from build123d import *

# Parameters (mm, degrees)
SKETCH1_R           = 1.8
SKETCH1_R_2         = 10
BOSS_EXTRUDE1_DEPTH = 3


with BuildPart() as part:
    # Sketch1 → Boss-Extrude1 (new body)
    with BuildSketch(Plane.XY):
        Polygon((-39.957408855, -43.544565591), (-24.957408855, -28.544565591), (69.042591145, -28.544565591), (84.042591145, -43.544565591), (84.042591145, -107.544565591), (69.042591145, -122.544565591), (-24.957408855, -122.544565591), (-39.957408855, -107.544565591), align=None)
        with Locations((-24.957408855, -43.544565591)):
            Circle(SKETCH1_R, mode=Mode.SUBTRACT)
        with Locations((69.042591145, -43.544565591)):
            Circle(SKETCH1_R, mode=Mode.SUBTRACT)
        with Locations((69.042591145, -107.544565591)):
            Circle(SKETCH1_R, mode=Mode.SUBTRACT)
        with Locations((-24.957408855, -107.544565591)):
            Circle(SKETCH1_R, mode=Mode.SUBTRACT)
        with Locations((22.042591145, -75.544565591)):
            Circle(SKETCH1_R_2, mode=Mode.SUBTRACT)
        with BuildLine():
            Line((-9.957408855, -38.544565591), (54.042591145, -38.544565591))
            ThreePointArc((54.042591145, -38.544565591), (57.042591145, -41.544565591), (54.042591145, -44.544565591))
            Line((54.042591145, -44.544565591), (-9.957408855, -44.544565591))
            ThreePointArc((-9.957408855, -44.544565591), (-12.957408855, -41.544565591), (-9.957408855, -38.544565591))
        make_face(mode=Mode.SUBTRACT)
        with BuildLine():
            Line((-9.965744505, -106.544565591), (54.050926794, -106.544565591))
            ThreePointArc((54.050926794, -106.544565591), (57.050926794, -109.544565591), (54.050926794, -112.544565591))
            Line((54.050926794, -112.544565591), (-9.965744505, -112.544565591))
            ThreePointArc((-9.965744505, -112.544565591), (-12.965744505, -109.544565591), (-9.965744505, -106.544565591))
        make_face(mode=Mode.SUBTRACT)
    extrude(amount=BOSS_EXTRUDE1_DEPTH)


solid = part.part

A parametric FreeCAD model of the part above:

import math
import FreeCAD as App
import Part
import Sketcher

V = App.Vector
Q = App.Units.Quantity

doc = App.newDocument("Part")
body = doc.addObject("PartDesign::Body", "Body")

sketch1 = body.newObject("Sketcher::SketchObject", "Sketch")
sketch1.AttachmentSupport = (doc.getObject("XY_Plane"), [""])
sketch1.MapMode = "FlatFace"
sketch1.addGeometry([
    Part.LineSegment(V(-25, -28.5, 0), V(-40, -43.5, 0)),
    Part.LineSegment(V(-40, -43.5, 0), V(-40, -107.5, 0)),
    Part.LineSegment(V(-40, -107.5, 0), V(-25, -122.5, 0)),
    Part.LineSegment(V(-25, -122.5, 0), V(69, -122.5, 0)),
    Part.LineSegment(V(69, -122.5, 0), V(84, -107.5, 0)),
    Part.LineSegment(V(84, -107.5, 0), V(84, -43.5, 0)),
    Part.LineSegment(V(84, -43.5, 0), V(69, -28.5, 0)),
    Part.LineSegment(V(69, -28.5, 0), V(-25, -28.5, 0)),
    Part.Circle(V(69, -107.5, 0), V(0, 0, 1), 1.8),
    Part.LineSegment(V(-10, -106.5, 0), V(54.1, -106.5, 0)),
    Part.ArcOfCircle(Part.Circle(V(54.1, -109.5, 0), V(0, 0, 1), 3), math.radians(-90), math.radians(90)),
    Part.LineSegment(V(54.1, -112.5, 0), V(-10, -112.5, 0)),
    Part.ArcOfCircle(Part.Circle(V(-10, -109.5, 0), V(0, 0, 1), 3), math.radians(90), math.radians(270)),
    Part.Circle(V(-25, -107.5, 0), V(0, 0, 1), 1.8),
    Part.Circle(V(69, -43.5, 0), V(0, 0, 1), 1.8),
    Part.Circle(V(22, -75.5, 0), V(0, 0, 1), 10),
    Part.LineSegment(V(-10, -38.5, 0), V(54, -38.5, 0)),
    Part.ArcOfCircle(Part.Circle(V(54, -41.5, 0), V(0, 0, 1), 3), math.radians(-90), math.radians(90)),
    Part.LineSegment(V(54, -44.5, 0), V(-10, -44.5, 0)),
    Part.ArcOfCircle(Part.Circle(V(-10, -41.5, 0), V(0, 0, 1), 3), math.radians(90), math.radians(270)),
    Part.Circle(V(-25, -43.5, 0), V(0, 0, 1), 1.8),
], False)
sketch1.addConstraint([
    Sketcher.Constraint("Coincident", 0, 2, 1, 1),
    Sketcher.Constraint("Coincident", 1, 2, 2, 1),
    Sketcher.Constraint("Coincident", 2, 2, 3, 1),
    Sketcher.Constraint("Coincident", 3, 2, 4, 1),
    Sketcher.Constraint("Coincident", 4, 2, 5, 1),
    Sketcher.Constraint("Coincident", 5, 2, 6, 1),
    Sketcher.Constraint("Coincident", 6, 2, 7, 1),
    Sketcher.Constraint("Coincident", 7, 2, 0, 1),
    Sketcher.Constraint("Tangent", 9, 2, 10, 2),
    Sketcher.Constraint("Tangent", 10, 1, 11, 1),
    Sketcher.Constraint("Tangent", 11, 2, 12, 2),
    Sketcher.Constraint("Tangent", 12, 1, 9, 1),
    Sketcher.Constraint("Tangent", 16, 2, 17, 2),
    Sketcher.Constraint("Tangent", 17, 1, 18, 1),
    Sketcher.Constraint("Tangent", 18, 2, 19, 2),
    Sketcher.Constraint("Tangent", 19, 1, 16, 1),
    Sketcher.Constraint("Vertical", 1),
    Sketcher.Constraint("Horizontal", 3),
    Sketcher.Constraint("Vertical", 5),
    Sketcher.Constraint("Horizontal", 7),
    Sketcher.Constraint("Horizontal", 9),
    Sketcher.Constraint("Horizontal", 11),
    Sketcher.Constraint("Horizontal", 16),
    Sketcher.Constraint("Horizontal", 18),
    Sketcher.Constraint("Equal", 8, 13),
    Sketcher.Constraint("Equal", 13, 14),
    Sketcher.Constraint("Equal", 12, 17),
    Sketcher.Constraint("Equal", 14, 20),
    Sketcher.Constraint("Perpendicular", 0, 2),
    Sketcher.Constraint("Perpendicular", 2, 4),
    Sketcher.Constraint("Perpendicular", 4, 6),
    Sketcher.Constraint("Horizontal", 8, 3, 13, 3),
    Sketcher.Constraint("Horizontal", 14, 3, 20, 3),
    Sketcher.Constraint("Horizontal", 20, 3, 0, 2),
    Sketcher.Constraint("Horizontal", 13, 3, 1, 2),
    Sketcher.Constraint("Horizontal", 1, 2, 4, 2),
    Sketcher.Constraint("Horizontal", 0, 2, 5, 2),
    Sketcher.Constraint("Vertical", 8, 3, 14, 3),
    Sketcher.Constraint("Vertical", 13, 3, 20, 3),
    Sketcher.Constraint("Vertical", 20, 3, 2, 2),
    Sketcher.Constraint("Vertical", 14, 3, 3, 2),
    Sketcher.Constraint("Vertical", 3, 2, 6, 2),
    Sketcher.Constraint("Vertical", 2, 2, 7, 2),
    Sketcher.Constraint("Equal", 18, 1),
    Sketcher.Constraint("Diameter", 15, Q("20 mm")),
    Sketcher.Constraint("Radius", 10, Q("3 mm")),
    Sketcher.Constraint("Diameter", 8, Q("3.6 mm")),
    Sketcher.Constraint("DistanceX", 3, 1, 3, 2, Q("94 mm")),
    Sketcher.Constraint("DistanceX", 16, 1, 16, 2, Q("64 mm")),
    Sketcher.Constraint("DistanceY", 10, 3, 8, 3, Q("2 mm")),
    Sketcher.Constraint("DistanceY", 10, 3, 15, 3, Q("34 mm")),
    Sketcher.Constraint("DistanceX", 15, 3, 14, 3, Q("47 mm")),
    Sketcher.Constraint("DistanceX", 17, 3, 14, 3, Q("15 mm")),
    Sketcher.Constraint("DistanceY", 14, 3, 17, 3, Q("2 mm")),
    Sketcher.Constraint("DistanceX", 0, 2, 20, 3, Q("15 mm")),
    Sketcher.Constraint("DistanceX", 9, 1, 9, 2, Q("64.016671 mm")),
    Sketcher.Constraint("DistanceX", -1, 1, 8, 3, Q("69.042591 mm")),
    Sketcher.Constraint("DistanceY", 8, 3, -1, 1, Q("107.544566 mm")),
    Sketcher.Constraint("DistanceX", -1, 1, 10, 3, Q("54.050927 mm")),
])
pad1 = body.newObject("PartDesign::Pad", "Pad")
pad1.Profile = sketch1
pad1.Length = 3

doc.recompute()
